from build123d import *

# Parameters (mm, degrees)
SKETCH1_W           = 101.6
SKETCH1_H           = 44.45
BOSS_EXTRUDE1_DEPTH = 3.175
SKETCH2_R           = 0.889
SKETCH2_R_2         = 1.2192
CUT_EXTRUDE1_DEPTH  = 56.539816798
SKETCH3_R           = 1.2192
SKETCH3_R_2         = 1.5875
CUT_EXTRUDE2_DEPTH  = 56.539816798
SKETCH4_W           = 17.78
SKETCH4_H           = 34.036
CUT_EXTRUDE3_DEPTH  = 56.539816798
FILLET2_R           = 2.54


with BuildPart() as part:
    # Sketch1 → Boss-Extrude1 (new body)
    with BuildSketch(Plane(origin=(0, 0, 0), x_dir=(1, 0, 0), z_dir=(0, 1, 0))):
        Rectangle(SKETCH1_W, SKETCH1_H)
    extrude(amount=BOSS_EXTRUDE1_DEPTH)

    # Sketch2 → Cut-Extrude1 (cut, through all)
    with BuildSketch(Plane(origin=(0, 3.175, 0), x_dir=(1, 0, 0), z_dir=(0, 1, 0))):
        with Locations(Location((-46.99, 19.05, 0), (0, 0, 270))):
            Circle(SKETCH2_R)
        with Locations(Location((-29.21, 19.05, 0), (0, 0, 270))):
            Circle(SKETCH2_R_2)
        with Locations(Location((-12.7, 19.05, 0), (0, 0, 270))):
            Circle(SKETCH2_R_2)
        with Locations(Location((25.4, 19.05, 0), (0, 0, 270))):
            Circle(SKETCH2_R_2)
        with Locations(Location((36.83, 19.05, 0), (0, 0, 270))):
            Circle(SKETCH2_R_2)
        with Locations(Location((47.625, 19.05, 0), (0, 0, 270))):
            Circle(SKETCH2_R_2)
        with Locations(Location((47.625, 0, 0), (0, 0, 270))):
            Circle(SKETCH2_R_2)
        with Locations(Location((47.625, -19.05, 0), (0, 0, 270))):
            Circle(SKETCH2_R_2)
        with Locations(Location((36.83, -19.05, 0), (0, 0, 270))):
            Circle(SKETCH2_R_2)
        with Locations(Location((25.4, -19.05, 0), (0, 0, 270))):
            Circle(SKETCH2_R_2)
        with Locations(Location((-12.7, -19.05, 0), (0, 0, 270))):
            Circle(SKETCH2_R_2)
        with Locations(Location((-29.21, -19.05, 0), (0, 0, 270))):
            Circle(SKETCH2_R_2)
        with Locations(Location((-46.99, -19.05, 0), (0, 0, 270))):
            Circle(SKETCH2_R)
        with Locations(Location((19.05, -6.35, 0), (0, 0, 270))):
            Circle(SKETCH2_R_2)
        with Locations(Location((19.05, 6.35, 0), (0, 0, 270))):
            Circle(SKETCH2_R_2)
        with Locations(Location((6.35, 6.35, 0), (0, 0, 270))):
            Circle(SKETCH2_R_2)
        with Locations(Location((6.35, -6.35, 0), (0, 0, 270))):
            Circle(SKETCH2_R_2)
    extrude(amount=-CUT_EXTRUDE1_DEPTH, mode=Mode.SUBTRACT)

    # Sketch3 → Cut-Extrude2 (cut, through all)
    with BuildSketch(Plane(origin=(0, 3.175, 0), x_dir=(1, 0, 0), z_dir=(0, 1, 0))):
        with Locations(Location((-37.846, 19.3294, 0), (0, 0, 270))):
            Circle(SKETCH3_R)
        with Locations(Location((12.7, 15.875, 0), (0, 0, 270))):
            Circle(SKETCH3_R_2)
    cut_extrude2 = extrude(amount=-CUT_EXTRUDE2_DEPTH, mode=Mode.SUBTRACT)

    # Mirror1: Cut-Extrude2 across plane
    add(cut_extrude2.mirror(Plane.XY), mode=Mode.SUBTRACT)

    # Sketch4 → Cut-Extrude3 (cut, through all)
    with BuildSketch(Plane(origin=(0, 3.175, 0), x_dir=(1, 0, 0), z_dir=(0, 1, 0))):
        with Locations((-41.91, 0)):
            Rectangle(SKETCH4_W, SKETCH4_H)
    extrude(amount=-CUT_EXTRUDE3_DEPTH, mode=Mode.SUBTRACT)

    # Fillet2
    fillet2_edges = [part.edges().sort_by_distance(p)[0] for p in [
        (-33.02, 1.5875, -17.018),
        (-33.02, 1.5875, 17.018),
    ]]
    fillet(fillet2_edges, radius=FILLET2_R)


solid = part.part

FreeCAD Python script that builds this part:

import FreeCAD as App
import Part
import Sketcher
from FreeCAD import Vector
Q = App.Units.Quantity


def edges_at(feature, points):
    """Names of the edges that pass closest to the given points."""
    edges = feature.Shape.Edges
    near = lambda p: min(range(len(edges)), key=lambda i: edges[i].distToShape(Part.Vertex(*p))[0])
    return sorted({f"Edge{near(p) + 1}" for p in points})

doc = App.newDocument("Part")
body = doc.addObject("PartDesign::Body", "Body")

# Sketch on XZ plane
sketch1 = doc.addObject("Sketcher::SketchObject", "Sketch")
body.addObject(sketch1)
sketch1.AttachmentSupport = (doc.XZ_Plane, [""])
sketch1.MapMode = "FlatFace"
sketch1.addGeometry(Part.LineSegment(Vector(-51, -22, 0), Vector(-51, 22, 0)), False)
sketch1.addGeometry(Part.LineSegment(Vector(-51, 22, 0), Vector(51, 22, 0)), False)
sketch1.addGeometry(Part.LineSegment(Vector(51, 22, 0), Vector(51, -22, 0)), False)
sketch1.addGeometry(Part.LineSegment(Vector(51, -22, 0), Vector(-51, -22, 0)), False)
sketch1.addConstraint(Sketcher.Constraint("Coincident", 0, 2, 1, 1))
sketch1.addConstraint(Sketcher.Constraint("Coincident", 1, 2, 2, 1))
sketch1.addConstraint(Sketcher.Constraint("Coincident", 2, 2, 3, 1))
sketch1.addConstraint(Sketcher.Constraint("Coincident", 3, 2, 0, 1))
sketch1.addConstraint(Sketcher.Constraint("Vertical", 0))
sketch1.addConstraint(Sketcher.Constraint("Horizontal", 1))
sketch1.addConstraint(Sketcher.Constraint("Vertical", 2))
sketch1.addConstraint(Sketcher.Constraint("Horizontal", 3))
sketch1.addConstraint(Sketcher.Constraint("Symmetric", 0, 2, 2, 2, -1, 1))
sketch1.addConstraint(Sketcher.Constraint("DistanceX", 1, 1, 1, 2, Q("4 in")))
sketch1.addConstraint(Sketcher.Constraint("DistanceY", 0, 1, 0, 2, Q("1.75 in")))
pad1 = doc.addObject("PartDesign::Pad", "Pad")
body.addObject(pad1)
pad1.Profile = sketch1
pad1.Length = Q("0.125 in")
pad1.Reversed = True

# Sketch on XZ plane
sketch2 = doc.addObject("Sketcher::SketchObject", "Sketch001")
body.addObject(sketch2)
sketch2.AttachmentSupport = (doc.XZ_Plane, [""])
sketch2.MapMode = "FlatFace"
sketch2.AttachmentOffset = App.Placement(Vector(0, 0, -0.125 * 25.4), App.Rotation())
sketch2.addGeometry(Part.Circle(Vector(-47, -19.1, 0), Vector(0, 0, 1), 0.9), False)
sketch2.addGeometry(Part.Circle(Vector(-29.2, -19.1, 0), Vector(0, 0, 1), 1.2), False)
sketch2.addGeometry(Part.Circle(Vector(-12.7, -19.1, 0), Vector(0, 0, 1), 1.2), False)
sketch2.addGeometry(Part.Circle(Vector(25.4, -19.1, 0), Vector(0, 0, 1), 1.2), False)
sketch2.addGeometry(Part.Circle(Vector(36.8, -19.1, 0), Vector(0, 0, 1), 1.2), False)
sketch2.addGeometry(Part.Circle(Vector(47.6, -19.1, 0), Vector(0, 0, 1), 1.2), False)
sketch2.addGeometry(Part.Circle(Vector(47.6, 0, 0), Vector(0, 0, 1), 1.2), False)
sketch2.addGeometry(Part.Circle(Vector(47.6, 19.1, 0), Vector(0, 0, 1), 1.2), False)
sketch2.addGeometry(Part.Circle(Vector(36.8, 19.1, 0), Vector(0, 0, 1), 1.2), False)
sketch2.addGeometry(Part.Circle(Vector(25.4, 19.1, 0), Vector(0, 0, 1), 1.2), False)
sketch2.addGeometry(Part.Circle(Vector(-12.7, 19.1, 0), Vector(0, 0, 1), 1.2), False)
sketch2.addGeometry(Part.Circle(Vector(-29.2, 19.1, 0), Vector(0, 0, 1), 1.2), False)
sketch2.addGeometry(Part.Circle(Vector(-47, 19.1, 0), Vector(0, 0, 1), 0.9), False)
sketch2.addGeometry(Part.Circle(Vector(19.1, 6.3, 0), Vector(0, 0, 1), 1.2), False)
sketch2.addGeometry(Part.Circle(Vector(19.1, -6.3, 0), Vector(0, 0, 1), 1.2), False)
sketch2.addGeometry(Part.Circle(Vector(6.3, -6.3, 0), Vector(0, 0, 1), 1.2), False)
sketch2.addGeometry(Part.Circle(Vector(6.3, 6.3, 0), Vector(0, 0, 1), 1.2), False)
sketch2.addConstraint(Sketcher.Constraint("Equal", 1, 2))
sketch2.addConstraint(Sketcher.Constraint("Equal", 2, 3))
sketch2.addConstraint(Sketcher.Constraint("Equal", 3, 4))
sketch2.addConstraint(Sketcher.Constraint("Equal", 4, 5))
sketch2.addConstraint(Sketcher.Constraint("Equal", 5, 6))
sketch2.addConstraint(Sketcher.Constraint("Equal", 6, 7))
sketch2.addConstraint(Sketcher.Constraint("Equal", 7, 8))
sketch2.addConstraint(Sketcher.Constraint("Equal", 8, 9))
sketch2.addConstraint(Sketcher.Constraint("Equal", 9, 10))
sketch2.addConstraint(Sketcher.Constraint("Equal", 10, 11))
sketch2.addConstraint(Sketcher.Constraint("Equal", 0, 12))
sketch2.addConstraint(Sketcher.Constraint("Equal", 11, 13))
sketch2.addConstraint(Sketcher.Constraint("Equal", 13, 14))
sketch2.addConstraint(Sketcher.Constraint("Equal", 14, 15))
sketch2.addConstraint(Sketcher.Constraint("Equal", 15, 16))
sketch2.addConstraint(Sketcher.Constraint("Symmetric", 5, 3, 7, 3, -1))
sketch2.addConstraint(Sketcher.Constraint("Symmetric", 4, 3, 8, 3, -1))
sketch2.addConstraint(Sketcher.Constraint("Symmetric", 3, 3, 9, 3, -1))
sketch2.addConstraint(Sketcher.Constraint("Symmetric", 2, 3, 10, 3, -1))
sketch2.addConstraint(Sketcher.Constraint("Symmetric", 1, 3, 11, 3, -1))
sketch2.addConstraint(Sketcher.Constraint("Symmetric", 0, 3, 12, 3, -1))
sketch2.addConstraint(Sketcher.Constraint("Symmetric", 13, 3, 14, 3, -1))
sketch2.addConstraint(Sketcher.Constraint("Symmetric", 15, 3, 16, 3, -1))
sketch2.addConstraint(Sketcher.Constraint("PointOnObject", 6, 3, -1))
sketch2.addConstraint(Sketcher.Constraint("Horizontal", 0, 3, 1, 3))
sketch2.addConstraint(Sketcher.Constraint("Horizontal", 1, 3, 2, 3))
sketch2.addConstraint(Sketcher.Constraint("Horizontal", 2, 3, 3, 3))
sketch2.addConstraint(Sketcher.Constraint("Horizontal", 3, 3, 4, 3))
sketch2.addConstraint(Sketcher.Constraint("Horizontal", 4, 3, 5, 3))
sketch2.addConstraint(Sketcher.Constraint("Horizontal", 14, 3, 15, 3))
sketch2.addConstraint(Sketcher.Constraint("Vertical", 5, 3, 6, 3))
sketch2.addConstraint(Sketcher.Constraint("Diameter", 0, Q("0.07 in")))
sketch2.addConstraint(Sketcher.Constraint("Diameter", 1, Q("0.096 in")))
sketch2.addConstraint(Sketcher.Constraint("DistanceX", -1, 1, 3, 3, Q("1 in")))
sketch2.addConstraint(Sketcher.Constraint("DistanceY", 3, 3, 13, 3, Q("1 in")))
sketch2.addConstraint(Sketcher.Constraint("DistanceX", 2, 3, -1, 1, Q("0.5 in")))
sketch2.addConstraint(Sketcher.Constraint("DistanceX", 0, 3, 1, 3, Q("0.7 in")))
sketch2.addConstraint(Sketcher.Constraint("DistanceX", 1, 3, 4, 3, Q("2.6 in")))
sketch2.addConstraint(Sketcher.Constraint("DistanceY", 5, 3, 7, 3, Q("1.5 in")))
sketch2.addConstraint(Sketcher.Constraint("DistanceX", 13, 3, 8, 3, Q("0.7 in")))
sketch2.addConstraint(Sketcher.Constraint("DistanceX", 15, 3, 14, 3, Q("0.5 in")))
sketch2.addConstraint(Sketcher.Constraint("DistanceX", 0, 3, -1, 1, Q("1.85 in")))
sketch2.addConstraint(Sketcher.Constraint("DistanceX", -1, 1, 5, 3, Q("1.875 in")))
pocket1 = doc.addObject("PartDesign::Pocket", "Pocket")
body.addObject(pocket1)
pocket1.Profile = sketch2
pocket1.Type = "ThroughAll"
pocket1.Reversed = True

# Sketch on XZ plane
sketch3 = doc.addObject("Sketcher::SketchObject", "Sketch002")
body.addObject(sketch3)
sketch3.AttachmentSupport = (doc.XZ_Plane, [""])
sketch3.MapMode = "FlatFace"
sketch3.AttachmentOffset = App.Placement(Vector(0, 0, -0.125 * 25.4), App.Rotation())
sketch3.addGeometry(Part.Circle(Vector(-37.8, -19.3, 0), Vector(0, 0, 1), 1.2), False)
sketch3.addGeometry(Part.Circle(Vector(12.7, -15.9, 0), Vector(0, 0, 1), 1.6), False)
sketch3.addConstraint(Sketcher.Constraint("Diameter", 0, Q("0.096 in")))
sketch3.addConstraint(Sketcher.Constraint("Diameter", 1, Q("0.125 in")))
sketch3.addConstraint(Sketcher.Constraint("DistanceX", -1, 1, 1, 3, Q("0.5 in")))
sketch3.addConstraint(Sketcher.Constraint("DistanceX", 0, 3, -1, 1, Q("1.49 in")))
sketch3.addConstraint(Sketcher.Constraint("DistanceY", 0, 3, -1, 1, Q("0.761 in")))
sketch3.addConstraint(Sketcher.Constraint("DistanceY", 1, 3, -1, 1, Q("0.625 in")))
pocket2 = doc.addObject("PartDesign::Pocket", "Pocket001")
body.addObject(pocket2)
pocket2.Profile = sketch3
pocket2.Type = "ThroughAll"
pocket2.Reversed = True
doc.recompute()

mirrored = doc.addObject("PartDesign::Mirrored", "Mirrored")
body.addObject(mirrored)
mirrored.Originals = [pocket2]
mirrored.MirrorPlane = (doc.XY_Plane, [""])
body.Tip = mirrored

# Sketch on XZ plane
sketch4 = doc.addObject("Sketcher::SketchObject", "Sketch003")
body.addObject(sketch4)
sketch4.AttachmentSupport = (doc.XZ_Plane, [""])
sketch4.MapMode = "FlatFace"
sketch4.AttachmentOffset = App.Placement(Vector(0, 0, -0.125 * 25.4), App.Rotation())
sketch4.addGeometry(Part.LineSegment(Vector(-51, -17, 0), Vector(-51, 17, 0)), False)
sketch4.addGeometry(Part.LineSegment(Vector(-51, 17, 0), Vector(-33, 17, 0)), False)
sketch4.addGeometry(Part.LineSegment(Vector(-33, 17, 0), Vector(-33, -17, 0)), False)
sketch4.addGeometry(Part.LineSegment(Vector(-33, -17, 0), Vector(-51, -17, 0)), False)
sketch4.addConstraint(Sketcher.Constraint("Coincident", 0, 2, 1, 1))
sketch4.addConstraint(Sketcher.Constraint("Coincident", 1, 2, 2, 1))
sketch4.addConstraint(Sketcher.Constraint("Coincident", 2, 2, 3, 1))
sketch4.addConstraint(Sketcher.Constraint("Coincident", 3, 2, 0, 1))
sketch4.addConstraint(Sketcher.Constraint("Vertical", 0))
sketch4.addConstraint(Sketcher.Constraint("Horizontal", 1))
sketch4.addConstraint(Sketcher.Constraint("Vertical", 2))
sketch4.addConstraint(Sketcher.Constraint("Horizontal", 3))
sketch4.addConstraint(Sketcher.Constraint("DistanceX", 1, 1, 1, 2, Q("0.7 in")))
sketch4.addConstraint(Sketcher.Constraint("DistanceX", 0, 2, -1, 1, Q("2 in")))
sketch4.addConstraint(Sketcher.Constraint("DistanceY", 0, 1, 0, 2, Q("1.34 in")))
sketch4.addConstraint(Sketcher.Constraint("DistanceY", -1, 1, 0, 2, Q("0.67 in")))
pocket3 = doc.addObject("PartDesign::Pocket", "Pocket002")
body.addObject(pocket3)
pocket3.Profile = sketch4
pocket3.Type = "ThroughAll"
pocket3.Reversed = True
doc.recompute()

fillet = doc.addObject("PartDesign::Fillet", "Fillet")
body.addObject(fillet)
fillet.Base = (pocket3, edges_at(pocket3, [(-33.02, 1.587, -17.018), (-33.02, 1.587, 17.018)]))
fillet.Radius = Q("0.1 in")

doc.recompute()
